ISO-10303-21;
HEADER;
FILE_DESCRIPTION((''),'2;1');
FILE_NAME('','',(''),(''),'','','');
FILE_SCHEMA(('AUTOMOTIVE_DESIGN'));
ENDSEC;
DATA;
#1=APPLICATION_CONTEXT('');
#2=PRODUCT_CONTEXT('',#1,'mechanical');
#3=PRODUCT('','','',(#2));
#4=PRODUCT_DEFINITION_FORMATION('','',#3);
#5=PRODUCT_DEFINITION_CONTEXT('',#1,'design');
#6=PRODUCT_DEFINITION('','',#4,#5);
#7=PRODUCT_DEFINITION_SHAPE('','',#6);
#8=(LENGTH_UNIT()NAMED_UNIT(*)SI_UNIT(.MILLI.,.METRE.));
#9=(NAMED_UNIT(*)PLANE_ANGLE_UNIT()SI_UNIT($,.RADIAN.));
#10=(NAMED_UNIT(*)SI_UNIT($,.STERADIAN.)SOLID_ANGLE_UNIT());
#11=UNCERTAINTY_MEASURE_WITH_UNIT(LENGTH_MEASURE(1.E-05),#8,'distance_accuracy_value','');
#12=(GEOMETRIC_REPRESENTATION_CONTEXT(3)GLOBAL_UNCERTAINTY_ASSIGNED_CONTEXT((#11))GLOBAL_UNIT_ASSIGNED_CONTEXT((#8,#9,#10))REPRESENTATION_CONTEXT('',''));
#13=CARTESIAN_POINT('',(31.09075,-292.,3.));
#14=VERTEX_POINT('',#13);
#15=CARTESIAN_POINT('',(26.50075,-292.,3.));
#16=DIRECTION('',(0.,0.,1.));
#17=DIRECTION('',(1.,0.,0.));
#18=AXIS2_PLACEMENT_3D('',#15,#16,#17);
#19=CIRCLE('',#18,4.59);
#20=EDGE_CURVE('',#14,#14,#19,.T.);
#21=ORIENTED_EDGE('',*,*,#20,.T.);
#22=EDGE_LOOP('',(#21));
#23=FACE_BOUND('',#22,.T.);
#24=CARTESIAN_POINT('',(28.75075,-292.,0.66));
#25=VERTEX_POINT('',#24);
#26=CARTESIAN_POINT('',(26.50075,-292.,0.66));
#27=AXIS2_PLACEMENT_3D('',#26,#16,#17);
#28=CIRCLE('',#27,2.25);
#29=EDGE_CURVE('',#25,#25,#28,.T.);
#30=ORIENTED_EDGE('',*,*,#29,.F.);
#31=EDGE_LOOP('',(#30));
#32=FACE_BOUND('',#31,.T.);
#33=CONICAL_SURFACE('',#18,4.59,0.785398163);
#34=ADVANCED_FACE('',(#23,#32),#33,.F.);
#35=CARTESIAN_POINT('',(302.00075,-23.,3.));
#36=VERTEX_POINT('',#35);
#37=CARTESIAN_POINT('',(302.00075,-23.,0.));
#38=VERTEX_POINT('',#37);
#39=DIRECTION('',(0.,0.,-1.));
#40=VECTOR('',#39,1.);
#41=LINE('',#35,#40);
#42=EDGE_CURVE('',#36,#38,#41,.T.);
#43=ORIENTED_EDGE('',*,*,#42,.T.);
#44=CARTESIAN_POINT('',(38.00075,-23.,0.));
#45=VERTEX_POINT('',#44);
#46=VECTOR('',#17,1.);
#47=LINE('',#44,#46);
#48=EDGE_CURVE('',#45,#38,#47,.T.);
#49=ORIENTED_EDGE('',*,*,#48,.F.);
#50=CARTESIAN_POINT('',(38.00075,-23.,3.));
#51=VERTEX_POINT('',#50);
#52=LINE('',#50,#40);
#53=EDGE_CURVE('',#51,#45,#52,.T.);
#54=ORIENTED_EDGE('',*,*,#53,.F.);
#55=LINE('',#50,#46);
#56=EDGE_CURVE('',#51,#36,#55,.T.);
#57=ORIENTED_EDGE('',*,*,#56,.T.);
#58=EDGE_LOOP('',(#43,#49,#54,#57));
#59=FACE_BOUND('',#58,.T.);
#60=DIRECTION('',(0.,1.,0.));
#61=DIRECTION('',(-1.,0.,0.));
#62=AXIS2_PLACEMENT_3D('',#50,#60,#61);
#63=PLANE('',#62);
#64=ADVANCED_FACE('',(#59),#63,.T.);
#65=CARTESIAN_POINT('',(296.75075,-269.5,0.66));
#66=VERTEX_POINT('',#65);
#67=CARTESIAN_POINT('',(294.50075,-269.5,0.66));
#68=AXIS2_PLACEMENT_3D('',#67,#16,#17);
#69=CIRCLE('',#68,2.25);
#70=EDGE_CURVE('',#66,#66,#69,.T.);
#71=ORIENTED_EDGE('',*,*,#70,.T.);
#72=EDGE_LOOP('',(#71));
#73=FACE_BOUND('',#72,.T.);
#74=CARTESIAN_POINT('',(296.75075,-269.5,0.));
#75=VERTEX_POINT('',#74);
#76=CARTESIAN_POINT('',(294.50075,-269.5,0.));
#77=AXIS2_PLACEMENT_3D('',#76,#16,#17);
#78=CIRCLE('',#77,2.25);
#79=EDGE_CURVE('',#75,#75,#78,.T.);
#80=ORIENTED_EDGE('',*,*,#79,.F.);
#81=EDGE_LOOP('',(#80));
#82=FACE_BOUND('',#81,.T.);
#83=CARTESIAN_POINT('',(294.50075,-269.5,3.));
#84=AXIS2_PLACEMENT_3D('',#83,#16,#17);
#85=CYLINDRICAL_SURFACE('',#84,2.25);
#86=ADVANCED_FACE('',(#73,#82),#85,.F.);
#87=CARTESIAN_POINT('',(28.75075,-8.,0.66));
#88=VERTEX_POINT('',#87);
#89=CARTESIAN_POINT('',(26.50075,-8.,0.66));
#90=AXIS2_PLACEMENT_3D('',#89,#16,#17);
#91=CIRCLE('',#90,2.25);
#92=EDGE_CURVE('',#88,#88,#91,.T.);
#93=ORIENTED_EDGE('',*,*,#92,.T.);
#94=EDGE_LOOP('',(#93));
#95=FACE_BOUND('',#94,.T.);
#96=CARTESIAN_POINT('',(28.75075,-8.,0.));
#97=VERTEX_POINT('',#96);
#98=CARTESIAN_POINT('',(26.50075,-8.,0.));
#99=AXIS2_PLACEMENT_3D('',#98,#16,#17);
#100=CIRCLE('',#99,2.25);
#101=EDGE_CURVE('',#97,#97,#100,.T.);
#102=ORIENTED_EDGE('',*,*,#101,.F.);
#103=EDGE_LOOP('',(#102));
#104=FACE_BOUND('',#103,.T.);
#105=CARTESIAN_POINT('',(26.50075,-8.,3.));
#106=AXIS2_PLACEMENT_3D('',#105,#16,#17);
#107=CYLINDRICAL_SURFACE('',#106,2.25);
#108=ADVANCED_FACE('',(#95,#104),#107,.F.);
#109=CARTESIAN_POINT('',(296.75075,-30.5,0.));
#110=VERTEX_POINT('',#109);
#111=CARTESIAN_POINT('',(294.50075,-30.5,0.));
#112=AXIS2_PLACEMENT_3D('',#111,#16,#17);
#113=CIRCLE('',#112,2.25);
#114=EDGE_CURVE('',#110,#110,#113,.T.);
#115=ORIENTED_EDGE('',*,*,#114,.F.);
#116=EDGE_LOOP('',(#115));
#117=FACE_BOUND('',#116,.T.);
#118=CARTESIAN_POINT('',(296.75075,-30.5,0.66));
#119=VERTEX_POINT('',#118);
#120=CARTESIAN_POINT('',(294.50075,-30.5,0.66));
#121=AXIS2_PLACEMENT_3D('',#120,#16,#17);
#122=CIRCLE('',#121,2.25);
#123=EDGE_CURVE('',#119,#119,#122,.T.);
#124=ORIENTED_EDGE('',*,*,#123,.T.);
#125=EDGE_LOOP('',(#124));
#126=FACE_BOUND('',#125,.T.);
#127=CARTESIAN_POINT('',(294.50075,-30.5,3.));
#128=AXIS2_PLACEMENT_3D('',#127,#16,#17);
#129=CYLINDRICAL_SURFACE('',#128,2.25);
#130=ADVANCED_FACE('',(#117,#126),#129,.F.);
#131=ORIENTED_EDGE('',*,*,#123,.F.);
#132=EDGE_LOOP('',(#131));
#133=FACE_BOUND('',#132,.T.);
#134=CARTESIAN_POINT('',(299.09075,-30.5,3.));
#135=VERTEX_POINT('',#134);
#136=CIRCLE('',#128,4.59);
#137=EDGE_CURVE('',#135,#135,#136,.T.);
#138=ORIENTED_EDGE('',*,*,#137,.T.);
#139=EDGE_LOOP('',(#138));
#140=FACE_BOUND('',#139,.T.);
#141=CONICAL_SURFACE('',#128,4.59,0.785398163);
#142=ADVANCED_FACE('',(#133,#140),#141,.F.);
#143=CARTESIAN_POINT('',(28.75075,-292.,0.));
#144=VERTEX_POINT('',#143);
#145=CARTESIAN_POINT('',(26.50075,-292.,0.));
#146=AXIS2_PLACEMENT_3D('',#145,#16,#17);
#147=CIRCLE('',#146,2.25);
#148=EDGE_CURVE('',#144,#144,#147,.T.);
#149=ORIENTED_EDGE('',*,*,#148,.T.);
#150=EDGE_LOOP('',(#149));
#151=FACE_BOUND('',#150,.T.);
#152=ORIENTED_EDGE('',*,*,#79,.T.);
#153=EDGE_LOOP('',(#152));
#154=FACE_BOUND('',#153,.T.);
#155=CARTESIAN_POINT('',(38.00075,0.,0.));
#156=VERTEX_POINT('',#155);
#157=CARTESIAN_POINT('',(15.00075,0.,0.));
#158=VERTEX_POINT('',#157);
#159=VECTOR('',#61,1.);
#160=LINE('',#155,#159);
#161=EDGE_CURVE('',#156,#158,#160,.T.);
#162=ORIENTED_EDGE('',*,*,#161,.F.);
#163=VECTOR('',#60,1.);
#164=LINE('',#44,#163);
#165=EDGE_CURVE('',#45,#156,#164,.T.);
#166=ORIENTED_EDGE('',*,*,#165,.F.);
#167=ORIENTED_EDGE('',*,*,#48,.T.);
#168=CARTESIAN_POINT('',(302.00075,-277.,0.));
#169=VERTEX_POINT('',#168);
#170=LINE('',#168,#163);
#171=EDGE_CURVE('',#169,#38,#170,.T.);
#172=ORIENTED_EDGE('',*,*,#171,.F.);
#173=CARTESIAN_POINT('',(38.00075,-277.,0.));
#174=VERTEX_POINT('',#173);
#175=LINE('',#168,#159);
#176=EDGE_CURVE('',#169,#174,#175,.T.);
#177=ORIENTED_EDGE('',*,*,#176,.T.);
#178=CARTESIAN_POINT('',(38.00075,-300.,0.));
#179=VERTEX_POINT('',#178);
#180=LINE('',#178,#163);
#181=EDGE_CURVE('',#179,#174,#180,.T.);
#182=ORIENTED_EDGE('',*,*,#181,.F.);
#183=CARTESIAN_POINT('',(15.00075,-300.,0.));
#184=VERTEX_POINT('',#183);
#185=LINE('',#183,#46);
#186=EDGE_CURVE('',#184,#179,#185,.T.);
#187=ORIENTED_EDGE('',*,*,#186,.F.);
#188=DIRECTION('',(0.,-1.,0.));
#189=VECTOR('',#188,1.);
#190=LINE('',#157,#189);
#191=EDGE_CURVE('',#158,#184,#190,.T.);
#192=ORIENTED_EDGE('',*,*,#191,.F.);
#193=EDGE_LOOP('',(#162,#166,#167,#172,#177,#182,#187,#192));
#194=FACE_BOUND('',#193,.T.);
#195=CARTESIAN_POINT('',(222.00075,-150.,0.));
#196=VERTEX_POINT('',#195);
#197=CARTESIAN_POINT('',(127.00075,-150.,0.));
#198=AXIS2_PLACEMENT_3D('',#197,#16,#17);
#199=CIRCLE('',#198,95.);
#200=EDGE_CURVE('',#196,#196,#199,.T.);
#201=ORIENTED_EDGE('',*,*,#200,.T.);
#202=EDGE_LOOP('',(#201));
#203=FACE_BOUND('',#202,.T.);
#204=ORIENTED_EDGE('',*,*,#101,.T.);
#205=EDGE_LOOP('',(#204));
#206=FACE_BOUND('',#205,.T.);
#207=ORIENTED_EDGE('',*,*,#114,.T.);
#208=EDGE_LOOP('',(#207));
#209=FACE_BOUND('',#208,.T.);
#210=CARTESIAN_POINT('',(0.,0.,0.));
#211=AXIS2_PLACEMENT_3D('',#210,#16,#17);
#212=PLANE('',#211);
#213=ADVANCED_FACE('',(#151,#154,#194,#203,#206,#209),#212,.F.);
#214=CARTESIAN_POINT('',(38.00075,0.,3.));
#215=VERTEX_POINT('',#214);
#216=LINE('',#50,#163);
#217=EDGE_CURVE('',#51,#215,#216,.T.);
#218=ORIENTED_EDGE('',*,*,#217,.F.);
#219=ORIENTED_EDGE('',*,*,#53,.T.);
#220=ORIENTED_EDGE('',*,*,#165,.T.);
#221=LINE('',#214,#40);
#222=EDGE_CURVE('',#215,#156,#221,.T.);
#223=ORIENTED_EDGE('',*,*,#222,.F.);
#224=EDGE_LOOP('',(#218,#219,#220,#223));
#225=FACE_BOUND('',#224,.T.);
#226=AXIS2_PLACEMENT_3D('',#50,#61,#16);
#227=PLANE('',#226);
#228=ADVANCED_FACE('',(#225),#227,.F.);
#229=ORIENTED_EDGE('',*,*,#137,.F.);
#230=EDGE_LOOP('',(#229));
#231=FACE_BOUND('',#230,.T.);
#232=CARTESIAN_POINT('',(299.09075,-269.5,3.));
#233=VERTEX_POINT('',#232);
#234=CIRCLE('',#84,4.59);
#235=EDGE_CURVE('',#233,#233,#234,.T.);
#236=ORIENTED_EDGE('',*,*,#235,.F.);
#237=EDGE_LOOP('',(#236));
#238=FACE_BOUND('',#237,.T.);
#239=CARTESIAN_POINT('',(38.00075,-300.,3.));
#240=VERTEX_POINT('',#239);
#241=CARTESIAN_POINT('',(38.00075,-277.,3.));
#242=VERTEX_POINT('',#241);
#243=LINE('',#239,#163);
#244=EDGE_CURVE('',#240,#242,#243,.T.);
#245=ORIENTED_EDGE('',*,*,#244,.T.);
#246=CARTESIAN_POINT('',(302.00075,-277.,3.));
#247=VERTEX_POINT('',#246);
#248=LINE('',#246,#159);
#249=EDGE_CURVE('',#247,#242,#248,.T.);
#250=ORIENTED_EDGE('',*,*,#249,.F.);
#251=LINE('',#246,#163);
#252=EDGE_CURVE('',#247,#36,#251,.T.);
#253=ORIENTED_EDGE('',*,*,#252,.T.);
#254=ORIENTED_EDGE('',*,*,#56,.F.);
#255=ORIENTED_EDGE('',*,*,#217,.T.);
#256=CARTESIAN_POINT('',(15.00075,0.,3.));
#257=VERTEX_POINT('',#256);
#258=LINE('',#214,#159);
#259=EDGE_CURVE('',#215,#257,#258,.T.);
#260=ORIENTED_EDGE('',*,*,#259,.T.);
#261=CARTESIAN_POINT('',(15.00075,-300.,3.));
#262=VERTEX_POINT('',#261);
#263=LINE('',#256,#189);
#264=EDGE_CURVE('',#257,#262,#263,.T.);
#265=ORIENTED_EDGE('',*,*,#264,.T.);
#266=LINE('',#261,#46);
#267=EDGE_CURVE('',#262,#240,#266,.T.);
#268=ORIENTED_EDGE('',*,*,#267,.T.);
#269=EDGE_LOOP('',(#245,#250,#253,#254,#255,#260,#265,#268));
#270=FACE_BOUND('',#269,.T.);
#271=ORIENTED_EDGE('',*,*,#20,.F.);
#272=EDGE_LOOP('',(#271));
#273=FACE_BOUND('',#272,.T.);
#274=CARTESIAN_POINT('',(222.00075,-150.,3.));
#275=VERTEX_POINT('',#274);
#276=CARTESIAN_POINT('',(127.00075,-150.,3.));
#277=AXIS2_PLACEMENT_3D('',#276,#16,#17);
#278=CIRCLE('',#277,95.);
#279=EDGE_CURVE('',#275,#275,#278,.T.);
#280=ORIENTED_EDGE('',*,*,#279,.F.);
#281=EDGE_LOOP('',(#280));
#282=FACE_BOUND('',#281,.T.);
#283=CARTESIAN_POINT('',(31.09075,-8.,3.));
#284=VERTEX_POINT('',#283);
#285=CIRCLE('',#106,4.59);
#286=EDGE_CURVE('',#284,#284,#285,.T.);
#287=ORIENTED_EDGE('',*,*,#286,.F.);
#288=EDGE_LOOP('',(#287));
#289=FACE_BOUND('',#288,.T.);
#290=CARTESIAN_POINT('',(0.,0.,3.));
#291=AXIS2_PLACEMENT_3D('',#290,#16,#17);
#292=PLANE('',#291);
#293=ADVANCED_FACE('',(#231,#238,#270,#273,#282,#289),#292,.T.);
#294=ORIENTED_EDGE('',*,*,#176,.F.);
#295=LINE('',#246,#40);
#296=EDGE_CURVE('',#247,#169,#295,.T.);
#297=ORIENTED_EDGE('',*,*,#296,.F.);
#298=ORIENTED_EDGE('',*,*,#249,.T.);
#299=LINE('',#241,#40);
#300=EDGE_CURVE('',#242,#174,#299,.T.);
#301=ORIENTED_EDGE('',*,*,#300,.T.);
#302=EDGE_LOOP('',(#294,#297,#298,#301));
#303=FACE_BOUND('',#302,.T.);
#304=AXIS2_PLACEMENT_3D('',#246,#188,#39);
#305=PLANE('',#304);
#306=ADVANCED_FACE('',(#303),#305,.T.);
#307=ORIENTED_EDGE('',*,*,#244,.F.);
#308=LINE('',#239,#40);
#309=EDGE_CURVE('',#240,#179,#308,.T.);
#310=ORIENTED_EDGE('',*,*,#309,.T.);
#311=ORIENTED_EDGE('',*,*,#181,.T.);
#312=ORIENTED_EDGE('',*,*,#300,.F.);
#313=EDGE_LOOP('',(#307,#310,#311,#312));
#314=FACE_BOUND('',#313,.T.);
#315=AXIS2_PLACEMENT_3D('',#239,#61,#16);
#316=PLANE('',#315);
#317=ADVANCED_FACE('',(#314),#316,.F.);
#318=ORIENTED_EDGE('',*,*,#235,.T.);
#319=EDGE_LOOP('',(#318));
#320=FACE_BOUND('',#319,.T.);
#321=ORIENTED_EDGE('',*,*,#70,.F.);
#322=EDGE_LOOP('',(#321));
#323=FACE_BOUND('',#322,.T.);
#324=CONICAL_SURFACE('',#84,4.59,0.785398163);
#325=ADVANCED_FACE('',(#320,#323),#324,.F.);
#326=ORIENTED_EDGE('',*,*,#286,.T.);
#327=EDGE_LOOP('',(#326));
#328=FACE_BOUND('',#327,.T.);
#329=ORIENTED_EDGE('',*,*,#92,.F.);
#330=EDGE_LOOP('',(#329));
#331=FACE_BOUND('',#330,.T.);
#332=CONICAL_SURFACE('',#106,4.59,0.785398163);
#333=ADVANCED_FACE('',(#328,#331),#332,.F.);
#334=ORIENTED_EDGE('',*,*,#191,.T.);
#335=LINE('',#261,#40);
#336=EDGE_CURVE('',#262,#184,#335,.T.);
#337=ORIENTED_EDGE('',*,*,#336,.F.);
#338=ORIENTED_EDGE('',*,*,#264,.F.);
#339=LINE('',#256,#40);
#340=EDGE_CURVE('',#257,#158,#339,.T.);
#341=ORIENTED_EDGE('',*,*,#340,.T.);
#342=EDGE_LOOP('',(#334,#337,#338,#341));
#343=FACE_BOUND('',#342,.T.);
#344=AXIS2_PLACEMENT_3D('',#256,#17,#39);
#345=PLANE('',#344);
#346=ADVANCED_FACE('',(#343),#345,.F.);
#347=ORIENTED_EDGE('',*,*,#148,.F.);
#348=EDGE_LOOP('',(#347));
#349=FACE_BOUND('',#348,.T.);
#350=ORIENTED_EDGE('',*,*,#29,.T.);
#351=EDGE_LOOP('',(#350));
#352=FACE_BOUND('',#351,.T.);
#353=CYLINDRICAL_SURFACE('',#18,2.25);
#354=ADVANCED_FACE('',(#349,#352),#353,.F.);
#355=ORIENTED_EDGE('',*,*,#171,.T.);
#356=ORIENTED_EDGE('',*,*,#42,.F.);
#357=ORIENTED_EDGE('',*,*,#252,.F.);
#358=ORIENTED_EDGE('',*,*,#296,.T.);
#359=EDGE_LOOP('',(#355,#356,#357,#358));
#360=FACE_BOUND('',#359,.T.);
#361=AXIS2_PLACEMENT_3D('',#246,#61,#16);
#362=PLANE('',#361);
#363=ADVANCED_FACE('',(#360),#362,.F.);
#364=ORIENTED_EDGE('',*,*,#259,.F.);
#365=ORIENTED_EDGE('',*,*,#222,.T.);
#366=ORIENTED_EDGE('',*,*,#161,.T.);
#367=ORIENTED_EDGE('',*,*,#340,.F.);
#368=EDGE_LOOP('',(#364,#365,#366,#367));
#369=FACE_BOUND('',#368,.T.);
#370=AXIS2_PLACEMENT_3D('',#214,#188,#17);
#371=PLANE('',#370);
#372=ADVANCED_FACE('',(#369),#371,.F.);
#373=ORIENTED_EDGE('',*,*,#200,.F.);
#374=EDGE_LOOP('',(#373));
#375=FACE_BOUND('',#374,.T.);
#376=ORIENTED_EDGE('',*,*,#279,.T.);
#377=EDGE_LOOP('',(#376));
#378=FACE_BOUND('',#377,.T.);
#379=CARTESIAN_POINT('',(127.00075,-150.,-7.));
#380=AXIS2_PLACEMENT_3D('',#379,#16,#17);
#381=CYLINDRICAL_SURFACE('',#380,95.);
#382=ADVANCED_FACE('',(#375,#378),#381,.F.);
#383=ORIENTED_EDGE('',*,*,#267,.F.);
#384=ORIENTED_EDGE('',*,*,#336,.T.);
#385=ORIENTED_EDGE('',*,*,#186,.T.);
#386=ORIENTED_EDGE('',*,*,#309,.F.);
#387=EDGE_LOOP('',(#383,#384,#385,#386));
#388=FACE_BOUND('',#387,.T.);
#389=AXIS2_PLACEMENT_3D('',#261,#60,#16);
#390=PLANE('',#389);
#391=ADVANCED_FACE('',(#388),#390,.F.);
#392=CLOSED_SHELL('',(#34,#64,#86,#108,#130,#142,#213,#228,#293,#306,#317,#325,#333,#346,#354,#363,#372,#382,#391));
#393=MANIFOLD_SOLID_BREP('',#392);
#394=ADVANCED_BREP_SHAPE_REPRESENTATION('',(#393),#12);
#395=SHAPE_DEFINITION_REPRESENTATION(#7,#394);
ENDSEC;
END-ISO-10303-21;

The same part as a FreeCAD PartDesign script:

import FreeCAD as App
import Part
import Sketcher
from FreeCAD import Vector
Q = App.Units.Quantity


def add_polygon(sketch, points):
    """Adds a closed chain of lines whose ends are joined by coincident constraints."""
    first, n = sketch.GeometryCount, len(points)
    for a, b in zip(points, points[1:] + points[:1]):
        sketch.addGeometry(Part.LineSegment(App.Vector(*a, 0), App.Vector(*b, 0)), False)
    for i in range(n):
        sketch.addConstraint(Sketcher.Constraint("Coincident", first + i, 2, first + (i + 1) % n, 1))

doc = App.newDocument("Part")
body = doc.addObject("PartDesign::Body", "Body")

# Sketch on XY plane
sketch1 = doc.addObject("Sketcher::SketchObject", "Sketch")
body.addObject(sketch1)
sketch1.AttachmentSupport = (doc.XY_Plane, [""])
sketch1.MapMode = "FlatFace"
add_polygon(sketch1, [(15.00075, 0), (15.00075, -300), (38.00075, -300), (38.00075, -277), (302.00075, -277), (302.00075, -23), (38.00075, -23), (38.00075, 0)])  # lines 0-7
sketch1.addConstraint([
    Sketcher.Constraint("Vertical", 0),
    Sketcher.Constraint("Horizontal", 1),
    Sketcher.Constraint("Vertical", 2),
    Sketcher.Constraint("Horizontal", 3),
    Sketcher.Constraint("Vertical", 4),
    Sketcher.Constraint("Horizontal", 5),
    Sketcher.Constraint("Vertical", 6),
    Sketcher.Constraint("Horizontal", 7),
    Sketcher.Constraint("PointOnObject", 6, 2, -1),
    Sketcher.Constraint("Vertical", 2, 2, 5, 2),
    Sketcher.Constraint("Equal", 7, 2),
    Sketcher.Constraint("Equal", 2, 6),
    Sketcher.Constraint("DistanceX", 1, 1, 1, 2, 23.0),
    Sketcher.Constraint("DistanceX", 3, 1, 3, 2, 264.0),
    Sketcher.Constraint("DistanceY", 0, 2, 0, 1, 300.0),
    Sketcher.Constraint("DistanceX", -1, 1, 0, 2, 15.00075),
])
pad1 = doc.addObject("PartDesign::Pad", "Pad")
body.addObject(pad1)
pad1.Profile = sketch1
pad1.Length = 3

# Sketch on YZ plane
sketch2 = doc.addObject("Sketcher::SketchObject", "Sketch001")
body.addObject(sketch2)
sketch2.AttachmentSupport = (doc.YZ_Plane, [""])
sketch2.MapMode = "FlatFace"
sketch2.AttachmentOffset = App.Placement(Vector(0, 0, 26.50075), App.Rotation())
add_polygon(sketch2, [(-8, 0), (-8, 3), (-12.59, 3), (-10.25, 0.66), (-10.25, 0)])  # lines 0-4
sketch2.addGeometry(Part.LineSegment(Vector(-8, 3, 0), Vector(-8, 0, 0)), True)  # axis
sketch2.addConstraint([
    Sketcher.Constraint("Vertical", 0),
    Sketcher.Constraint("Horizontal", 1),
    Sketcher.Constraint("Vertical", 3),
    Sketcher.Constraint("Horizontal", 4),
    Sketcher.Constraint("Vertical", 5),
    Sketcher.Constraint("Coincident", 5, 1, 0, 2),
    Sketcher.Constraint("PointOnObject", 3, 2, -1),
    Sketcher.Constraint("PointOnObject", 5, 2, -1),
    Sketcher.Constraint("DistanceY", 0, 1, 0, 2, 3.0),
    Sketcher.Constraint("Angle", 2, Q("-45 deg")),
    Sketcher.Constraint("DistanceX", 0, 2, -1, 1, 8.0),
    Sketcher.Constraint("DistanceX", 1, 2, 1, 1, 4.59),
    Sketcher.Constraint("DistanceX", 4, 1, 4, 2, 2.25),
])
groove = doc.addObject("PartDesign::Groove", "Groove")
body.addObject(groove)
groove.Profile = sketch2
groove.ReferenceAxis = (sketch2, ["Axis0"])
groove.Angle = 360
doc.recompute()

linearpattern = doc.addObject("PartDesign::LinearPattern", "LinearPattern")
body.addObject(linearpattern)
linearpattern.Originals = [groove]
linearpattern.Direction = (doc.Y_Axis, [""])
linearpattern.Mode = "offset"
linearpattern.Offset = 284
linearpattern.Occurrences = 2
linearpattern.Reversed = True
body.Tip = linearpattern
doc.recompute()

datumline = doc.addObject("PartDesign::Line", "DatumLine")
body.addObject(datumline)
datumline.Placement = App.Placement(Vector(0, 0, 0), App.Rotation(Vector(0, 0, 1), Vector(0.996494282, -0.083660901, 0)))
linearpattern2 = doc.addObject("PartDesign::LinearPattern", "LinearPattern001")
body.addObject(linearpattern2)
linearpattern2.Originals = [groove]
linearpattern2.Direction = (datumline, [""])
linearpattern2.Mode = "offset"
linearpattern2.Offset = 268.942838
linearpattern2.Occurrences = 2
body.Tip = linearpattern2
doc.recompute()

datumline2 = doc.addObject("PartDesign::Line", "DatumLine001")
body.addObject(datumline2)
datumline2.Placement = App.Placement(Vector(0, 0, 0), App.Rotation(Vector(0, 0, 1), Vector(0.715733108, -0.69837391, 0)))
linearpattern3 = doc.addObject("PartDesign::LinearPattern", "LinearPattern002")
body.addObject(linearpattern3)
linearpattern3.Originals = [groove]
linearpattern3.Direction = (datumline2, [""])
linearpattern3.Mode = "offset"
linearpattern3.Offset = 374.44125
linearpattern3.Occurrences = 2
body.Tip = linearpattern3

# Sketch on XY plane
sketch3 = doc.addObject("Sketcher::SketchObject", "Sketch002")
body.addObject(sketch3)
sketch3.AttachmentSupport = (doc.XY_Plane, [""])
sketch3.MapMode = "FlatFace"
sketch3.AttachmentOffset = App.Placement(Vector(0, 0, 3), App.Rotation())
sketch3.addGeometry(Part.Circle(Vector(127.00075, -150, 0), Vector(0, 0, 1), 95), False)
sketch3.addConstraint([
    Sketcher.Constraint("Diameter", 0, 190.0),
    Sketcher.Constraint("DistanceY", 0, 3, -1, 1, 150.0),
    Sketcher.Constraint("DistanceX", -1, 1, 0, 3, 127.00075),
])
pocket1 = doc.addObject("PartDesign::Pocket", "Pocket")
body.addObject(pocket1)
pocket1.Profile = sketch3
pocket1.Length = 10

doc.recompute()
